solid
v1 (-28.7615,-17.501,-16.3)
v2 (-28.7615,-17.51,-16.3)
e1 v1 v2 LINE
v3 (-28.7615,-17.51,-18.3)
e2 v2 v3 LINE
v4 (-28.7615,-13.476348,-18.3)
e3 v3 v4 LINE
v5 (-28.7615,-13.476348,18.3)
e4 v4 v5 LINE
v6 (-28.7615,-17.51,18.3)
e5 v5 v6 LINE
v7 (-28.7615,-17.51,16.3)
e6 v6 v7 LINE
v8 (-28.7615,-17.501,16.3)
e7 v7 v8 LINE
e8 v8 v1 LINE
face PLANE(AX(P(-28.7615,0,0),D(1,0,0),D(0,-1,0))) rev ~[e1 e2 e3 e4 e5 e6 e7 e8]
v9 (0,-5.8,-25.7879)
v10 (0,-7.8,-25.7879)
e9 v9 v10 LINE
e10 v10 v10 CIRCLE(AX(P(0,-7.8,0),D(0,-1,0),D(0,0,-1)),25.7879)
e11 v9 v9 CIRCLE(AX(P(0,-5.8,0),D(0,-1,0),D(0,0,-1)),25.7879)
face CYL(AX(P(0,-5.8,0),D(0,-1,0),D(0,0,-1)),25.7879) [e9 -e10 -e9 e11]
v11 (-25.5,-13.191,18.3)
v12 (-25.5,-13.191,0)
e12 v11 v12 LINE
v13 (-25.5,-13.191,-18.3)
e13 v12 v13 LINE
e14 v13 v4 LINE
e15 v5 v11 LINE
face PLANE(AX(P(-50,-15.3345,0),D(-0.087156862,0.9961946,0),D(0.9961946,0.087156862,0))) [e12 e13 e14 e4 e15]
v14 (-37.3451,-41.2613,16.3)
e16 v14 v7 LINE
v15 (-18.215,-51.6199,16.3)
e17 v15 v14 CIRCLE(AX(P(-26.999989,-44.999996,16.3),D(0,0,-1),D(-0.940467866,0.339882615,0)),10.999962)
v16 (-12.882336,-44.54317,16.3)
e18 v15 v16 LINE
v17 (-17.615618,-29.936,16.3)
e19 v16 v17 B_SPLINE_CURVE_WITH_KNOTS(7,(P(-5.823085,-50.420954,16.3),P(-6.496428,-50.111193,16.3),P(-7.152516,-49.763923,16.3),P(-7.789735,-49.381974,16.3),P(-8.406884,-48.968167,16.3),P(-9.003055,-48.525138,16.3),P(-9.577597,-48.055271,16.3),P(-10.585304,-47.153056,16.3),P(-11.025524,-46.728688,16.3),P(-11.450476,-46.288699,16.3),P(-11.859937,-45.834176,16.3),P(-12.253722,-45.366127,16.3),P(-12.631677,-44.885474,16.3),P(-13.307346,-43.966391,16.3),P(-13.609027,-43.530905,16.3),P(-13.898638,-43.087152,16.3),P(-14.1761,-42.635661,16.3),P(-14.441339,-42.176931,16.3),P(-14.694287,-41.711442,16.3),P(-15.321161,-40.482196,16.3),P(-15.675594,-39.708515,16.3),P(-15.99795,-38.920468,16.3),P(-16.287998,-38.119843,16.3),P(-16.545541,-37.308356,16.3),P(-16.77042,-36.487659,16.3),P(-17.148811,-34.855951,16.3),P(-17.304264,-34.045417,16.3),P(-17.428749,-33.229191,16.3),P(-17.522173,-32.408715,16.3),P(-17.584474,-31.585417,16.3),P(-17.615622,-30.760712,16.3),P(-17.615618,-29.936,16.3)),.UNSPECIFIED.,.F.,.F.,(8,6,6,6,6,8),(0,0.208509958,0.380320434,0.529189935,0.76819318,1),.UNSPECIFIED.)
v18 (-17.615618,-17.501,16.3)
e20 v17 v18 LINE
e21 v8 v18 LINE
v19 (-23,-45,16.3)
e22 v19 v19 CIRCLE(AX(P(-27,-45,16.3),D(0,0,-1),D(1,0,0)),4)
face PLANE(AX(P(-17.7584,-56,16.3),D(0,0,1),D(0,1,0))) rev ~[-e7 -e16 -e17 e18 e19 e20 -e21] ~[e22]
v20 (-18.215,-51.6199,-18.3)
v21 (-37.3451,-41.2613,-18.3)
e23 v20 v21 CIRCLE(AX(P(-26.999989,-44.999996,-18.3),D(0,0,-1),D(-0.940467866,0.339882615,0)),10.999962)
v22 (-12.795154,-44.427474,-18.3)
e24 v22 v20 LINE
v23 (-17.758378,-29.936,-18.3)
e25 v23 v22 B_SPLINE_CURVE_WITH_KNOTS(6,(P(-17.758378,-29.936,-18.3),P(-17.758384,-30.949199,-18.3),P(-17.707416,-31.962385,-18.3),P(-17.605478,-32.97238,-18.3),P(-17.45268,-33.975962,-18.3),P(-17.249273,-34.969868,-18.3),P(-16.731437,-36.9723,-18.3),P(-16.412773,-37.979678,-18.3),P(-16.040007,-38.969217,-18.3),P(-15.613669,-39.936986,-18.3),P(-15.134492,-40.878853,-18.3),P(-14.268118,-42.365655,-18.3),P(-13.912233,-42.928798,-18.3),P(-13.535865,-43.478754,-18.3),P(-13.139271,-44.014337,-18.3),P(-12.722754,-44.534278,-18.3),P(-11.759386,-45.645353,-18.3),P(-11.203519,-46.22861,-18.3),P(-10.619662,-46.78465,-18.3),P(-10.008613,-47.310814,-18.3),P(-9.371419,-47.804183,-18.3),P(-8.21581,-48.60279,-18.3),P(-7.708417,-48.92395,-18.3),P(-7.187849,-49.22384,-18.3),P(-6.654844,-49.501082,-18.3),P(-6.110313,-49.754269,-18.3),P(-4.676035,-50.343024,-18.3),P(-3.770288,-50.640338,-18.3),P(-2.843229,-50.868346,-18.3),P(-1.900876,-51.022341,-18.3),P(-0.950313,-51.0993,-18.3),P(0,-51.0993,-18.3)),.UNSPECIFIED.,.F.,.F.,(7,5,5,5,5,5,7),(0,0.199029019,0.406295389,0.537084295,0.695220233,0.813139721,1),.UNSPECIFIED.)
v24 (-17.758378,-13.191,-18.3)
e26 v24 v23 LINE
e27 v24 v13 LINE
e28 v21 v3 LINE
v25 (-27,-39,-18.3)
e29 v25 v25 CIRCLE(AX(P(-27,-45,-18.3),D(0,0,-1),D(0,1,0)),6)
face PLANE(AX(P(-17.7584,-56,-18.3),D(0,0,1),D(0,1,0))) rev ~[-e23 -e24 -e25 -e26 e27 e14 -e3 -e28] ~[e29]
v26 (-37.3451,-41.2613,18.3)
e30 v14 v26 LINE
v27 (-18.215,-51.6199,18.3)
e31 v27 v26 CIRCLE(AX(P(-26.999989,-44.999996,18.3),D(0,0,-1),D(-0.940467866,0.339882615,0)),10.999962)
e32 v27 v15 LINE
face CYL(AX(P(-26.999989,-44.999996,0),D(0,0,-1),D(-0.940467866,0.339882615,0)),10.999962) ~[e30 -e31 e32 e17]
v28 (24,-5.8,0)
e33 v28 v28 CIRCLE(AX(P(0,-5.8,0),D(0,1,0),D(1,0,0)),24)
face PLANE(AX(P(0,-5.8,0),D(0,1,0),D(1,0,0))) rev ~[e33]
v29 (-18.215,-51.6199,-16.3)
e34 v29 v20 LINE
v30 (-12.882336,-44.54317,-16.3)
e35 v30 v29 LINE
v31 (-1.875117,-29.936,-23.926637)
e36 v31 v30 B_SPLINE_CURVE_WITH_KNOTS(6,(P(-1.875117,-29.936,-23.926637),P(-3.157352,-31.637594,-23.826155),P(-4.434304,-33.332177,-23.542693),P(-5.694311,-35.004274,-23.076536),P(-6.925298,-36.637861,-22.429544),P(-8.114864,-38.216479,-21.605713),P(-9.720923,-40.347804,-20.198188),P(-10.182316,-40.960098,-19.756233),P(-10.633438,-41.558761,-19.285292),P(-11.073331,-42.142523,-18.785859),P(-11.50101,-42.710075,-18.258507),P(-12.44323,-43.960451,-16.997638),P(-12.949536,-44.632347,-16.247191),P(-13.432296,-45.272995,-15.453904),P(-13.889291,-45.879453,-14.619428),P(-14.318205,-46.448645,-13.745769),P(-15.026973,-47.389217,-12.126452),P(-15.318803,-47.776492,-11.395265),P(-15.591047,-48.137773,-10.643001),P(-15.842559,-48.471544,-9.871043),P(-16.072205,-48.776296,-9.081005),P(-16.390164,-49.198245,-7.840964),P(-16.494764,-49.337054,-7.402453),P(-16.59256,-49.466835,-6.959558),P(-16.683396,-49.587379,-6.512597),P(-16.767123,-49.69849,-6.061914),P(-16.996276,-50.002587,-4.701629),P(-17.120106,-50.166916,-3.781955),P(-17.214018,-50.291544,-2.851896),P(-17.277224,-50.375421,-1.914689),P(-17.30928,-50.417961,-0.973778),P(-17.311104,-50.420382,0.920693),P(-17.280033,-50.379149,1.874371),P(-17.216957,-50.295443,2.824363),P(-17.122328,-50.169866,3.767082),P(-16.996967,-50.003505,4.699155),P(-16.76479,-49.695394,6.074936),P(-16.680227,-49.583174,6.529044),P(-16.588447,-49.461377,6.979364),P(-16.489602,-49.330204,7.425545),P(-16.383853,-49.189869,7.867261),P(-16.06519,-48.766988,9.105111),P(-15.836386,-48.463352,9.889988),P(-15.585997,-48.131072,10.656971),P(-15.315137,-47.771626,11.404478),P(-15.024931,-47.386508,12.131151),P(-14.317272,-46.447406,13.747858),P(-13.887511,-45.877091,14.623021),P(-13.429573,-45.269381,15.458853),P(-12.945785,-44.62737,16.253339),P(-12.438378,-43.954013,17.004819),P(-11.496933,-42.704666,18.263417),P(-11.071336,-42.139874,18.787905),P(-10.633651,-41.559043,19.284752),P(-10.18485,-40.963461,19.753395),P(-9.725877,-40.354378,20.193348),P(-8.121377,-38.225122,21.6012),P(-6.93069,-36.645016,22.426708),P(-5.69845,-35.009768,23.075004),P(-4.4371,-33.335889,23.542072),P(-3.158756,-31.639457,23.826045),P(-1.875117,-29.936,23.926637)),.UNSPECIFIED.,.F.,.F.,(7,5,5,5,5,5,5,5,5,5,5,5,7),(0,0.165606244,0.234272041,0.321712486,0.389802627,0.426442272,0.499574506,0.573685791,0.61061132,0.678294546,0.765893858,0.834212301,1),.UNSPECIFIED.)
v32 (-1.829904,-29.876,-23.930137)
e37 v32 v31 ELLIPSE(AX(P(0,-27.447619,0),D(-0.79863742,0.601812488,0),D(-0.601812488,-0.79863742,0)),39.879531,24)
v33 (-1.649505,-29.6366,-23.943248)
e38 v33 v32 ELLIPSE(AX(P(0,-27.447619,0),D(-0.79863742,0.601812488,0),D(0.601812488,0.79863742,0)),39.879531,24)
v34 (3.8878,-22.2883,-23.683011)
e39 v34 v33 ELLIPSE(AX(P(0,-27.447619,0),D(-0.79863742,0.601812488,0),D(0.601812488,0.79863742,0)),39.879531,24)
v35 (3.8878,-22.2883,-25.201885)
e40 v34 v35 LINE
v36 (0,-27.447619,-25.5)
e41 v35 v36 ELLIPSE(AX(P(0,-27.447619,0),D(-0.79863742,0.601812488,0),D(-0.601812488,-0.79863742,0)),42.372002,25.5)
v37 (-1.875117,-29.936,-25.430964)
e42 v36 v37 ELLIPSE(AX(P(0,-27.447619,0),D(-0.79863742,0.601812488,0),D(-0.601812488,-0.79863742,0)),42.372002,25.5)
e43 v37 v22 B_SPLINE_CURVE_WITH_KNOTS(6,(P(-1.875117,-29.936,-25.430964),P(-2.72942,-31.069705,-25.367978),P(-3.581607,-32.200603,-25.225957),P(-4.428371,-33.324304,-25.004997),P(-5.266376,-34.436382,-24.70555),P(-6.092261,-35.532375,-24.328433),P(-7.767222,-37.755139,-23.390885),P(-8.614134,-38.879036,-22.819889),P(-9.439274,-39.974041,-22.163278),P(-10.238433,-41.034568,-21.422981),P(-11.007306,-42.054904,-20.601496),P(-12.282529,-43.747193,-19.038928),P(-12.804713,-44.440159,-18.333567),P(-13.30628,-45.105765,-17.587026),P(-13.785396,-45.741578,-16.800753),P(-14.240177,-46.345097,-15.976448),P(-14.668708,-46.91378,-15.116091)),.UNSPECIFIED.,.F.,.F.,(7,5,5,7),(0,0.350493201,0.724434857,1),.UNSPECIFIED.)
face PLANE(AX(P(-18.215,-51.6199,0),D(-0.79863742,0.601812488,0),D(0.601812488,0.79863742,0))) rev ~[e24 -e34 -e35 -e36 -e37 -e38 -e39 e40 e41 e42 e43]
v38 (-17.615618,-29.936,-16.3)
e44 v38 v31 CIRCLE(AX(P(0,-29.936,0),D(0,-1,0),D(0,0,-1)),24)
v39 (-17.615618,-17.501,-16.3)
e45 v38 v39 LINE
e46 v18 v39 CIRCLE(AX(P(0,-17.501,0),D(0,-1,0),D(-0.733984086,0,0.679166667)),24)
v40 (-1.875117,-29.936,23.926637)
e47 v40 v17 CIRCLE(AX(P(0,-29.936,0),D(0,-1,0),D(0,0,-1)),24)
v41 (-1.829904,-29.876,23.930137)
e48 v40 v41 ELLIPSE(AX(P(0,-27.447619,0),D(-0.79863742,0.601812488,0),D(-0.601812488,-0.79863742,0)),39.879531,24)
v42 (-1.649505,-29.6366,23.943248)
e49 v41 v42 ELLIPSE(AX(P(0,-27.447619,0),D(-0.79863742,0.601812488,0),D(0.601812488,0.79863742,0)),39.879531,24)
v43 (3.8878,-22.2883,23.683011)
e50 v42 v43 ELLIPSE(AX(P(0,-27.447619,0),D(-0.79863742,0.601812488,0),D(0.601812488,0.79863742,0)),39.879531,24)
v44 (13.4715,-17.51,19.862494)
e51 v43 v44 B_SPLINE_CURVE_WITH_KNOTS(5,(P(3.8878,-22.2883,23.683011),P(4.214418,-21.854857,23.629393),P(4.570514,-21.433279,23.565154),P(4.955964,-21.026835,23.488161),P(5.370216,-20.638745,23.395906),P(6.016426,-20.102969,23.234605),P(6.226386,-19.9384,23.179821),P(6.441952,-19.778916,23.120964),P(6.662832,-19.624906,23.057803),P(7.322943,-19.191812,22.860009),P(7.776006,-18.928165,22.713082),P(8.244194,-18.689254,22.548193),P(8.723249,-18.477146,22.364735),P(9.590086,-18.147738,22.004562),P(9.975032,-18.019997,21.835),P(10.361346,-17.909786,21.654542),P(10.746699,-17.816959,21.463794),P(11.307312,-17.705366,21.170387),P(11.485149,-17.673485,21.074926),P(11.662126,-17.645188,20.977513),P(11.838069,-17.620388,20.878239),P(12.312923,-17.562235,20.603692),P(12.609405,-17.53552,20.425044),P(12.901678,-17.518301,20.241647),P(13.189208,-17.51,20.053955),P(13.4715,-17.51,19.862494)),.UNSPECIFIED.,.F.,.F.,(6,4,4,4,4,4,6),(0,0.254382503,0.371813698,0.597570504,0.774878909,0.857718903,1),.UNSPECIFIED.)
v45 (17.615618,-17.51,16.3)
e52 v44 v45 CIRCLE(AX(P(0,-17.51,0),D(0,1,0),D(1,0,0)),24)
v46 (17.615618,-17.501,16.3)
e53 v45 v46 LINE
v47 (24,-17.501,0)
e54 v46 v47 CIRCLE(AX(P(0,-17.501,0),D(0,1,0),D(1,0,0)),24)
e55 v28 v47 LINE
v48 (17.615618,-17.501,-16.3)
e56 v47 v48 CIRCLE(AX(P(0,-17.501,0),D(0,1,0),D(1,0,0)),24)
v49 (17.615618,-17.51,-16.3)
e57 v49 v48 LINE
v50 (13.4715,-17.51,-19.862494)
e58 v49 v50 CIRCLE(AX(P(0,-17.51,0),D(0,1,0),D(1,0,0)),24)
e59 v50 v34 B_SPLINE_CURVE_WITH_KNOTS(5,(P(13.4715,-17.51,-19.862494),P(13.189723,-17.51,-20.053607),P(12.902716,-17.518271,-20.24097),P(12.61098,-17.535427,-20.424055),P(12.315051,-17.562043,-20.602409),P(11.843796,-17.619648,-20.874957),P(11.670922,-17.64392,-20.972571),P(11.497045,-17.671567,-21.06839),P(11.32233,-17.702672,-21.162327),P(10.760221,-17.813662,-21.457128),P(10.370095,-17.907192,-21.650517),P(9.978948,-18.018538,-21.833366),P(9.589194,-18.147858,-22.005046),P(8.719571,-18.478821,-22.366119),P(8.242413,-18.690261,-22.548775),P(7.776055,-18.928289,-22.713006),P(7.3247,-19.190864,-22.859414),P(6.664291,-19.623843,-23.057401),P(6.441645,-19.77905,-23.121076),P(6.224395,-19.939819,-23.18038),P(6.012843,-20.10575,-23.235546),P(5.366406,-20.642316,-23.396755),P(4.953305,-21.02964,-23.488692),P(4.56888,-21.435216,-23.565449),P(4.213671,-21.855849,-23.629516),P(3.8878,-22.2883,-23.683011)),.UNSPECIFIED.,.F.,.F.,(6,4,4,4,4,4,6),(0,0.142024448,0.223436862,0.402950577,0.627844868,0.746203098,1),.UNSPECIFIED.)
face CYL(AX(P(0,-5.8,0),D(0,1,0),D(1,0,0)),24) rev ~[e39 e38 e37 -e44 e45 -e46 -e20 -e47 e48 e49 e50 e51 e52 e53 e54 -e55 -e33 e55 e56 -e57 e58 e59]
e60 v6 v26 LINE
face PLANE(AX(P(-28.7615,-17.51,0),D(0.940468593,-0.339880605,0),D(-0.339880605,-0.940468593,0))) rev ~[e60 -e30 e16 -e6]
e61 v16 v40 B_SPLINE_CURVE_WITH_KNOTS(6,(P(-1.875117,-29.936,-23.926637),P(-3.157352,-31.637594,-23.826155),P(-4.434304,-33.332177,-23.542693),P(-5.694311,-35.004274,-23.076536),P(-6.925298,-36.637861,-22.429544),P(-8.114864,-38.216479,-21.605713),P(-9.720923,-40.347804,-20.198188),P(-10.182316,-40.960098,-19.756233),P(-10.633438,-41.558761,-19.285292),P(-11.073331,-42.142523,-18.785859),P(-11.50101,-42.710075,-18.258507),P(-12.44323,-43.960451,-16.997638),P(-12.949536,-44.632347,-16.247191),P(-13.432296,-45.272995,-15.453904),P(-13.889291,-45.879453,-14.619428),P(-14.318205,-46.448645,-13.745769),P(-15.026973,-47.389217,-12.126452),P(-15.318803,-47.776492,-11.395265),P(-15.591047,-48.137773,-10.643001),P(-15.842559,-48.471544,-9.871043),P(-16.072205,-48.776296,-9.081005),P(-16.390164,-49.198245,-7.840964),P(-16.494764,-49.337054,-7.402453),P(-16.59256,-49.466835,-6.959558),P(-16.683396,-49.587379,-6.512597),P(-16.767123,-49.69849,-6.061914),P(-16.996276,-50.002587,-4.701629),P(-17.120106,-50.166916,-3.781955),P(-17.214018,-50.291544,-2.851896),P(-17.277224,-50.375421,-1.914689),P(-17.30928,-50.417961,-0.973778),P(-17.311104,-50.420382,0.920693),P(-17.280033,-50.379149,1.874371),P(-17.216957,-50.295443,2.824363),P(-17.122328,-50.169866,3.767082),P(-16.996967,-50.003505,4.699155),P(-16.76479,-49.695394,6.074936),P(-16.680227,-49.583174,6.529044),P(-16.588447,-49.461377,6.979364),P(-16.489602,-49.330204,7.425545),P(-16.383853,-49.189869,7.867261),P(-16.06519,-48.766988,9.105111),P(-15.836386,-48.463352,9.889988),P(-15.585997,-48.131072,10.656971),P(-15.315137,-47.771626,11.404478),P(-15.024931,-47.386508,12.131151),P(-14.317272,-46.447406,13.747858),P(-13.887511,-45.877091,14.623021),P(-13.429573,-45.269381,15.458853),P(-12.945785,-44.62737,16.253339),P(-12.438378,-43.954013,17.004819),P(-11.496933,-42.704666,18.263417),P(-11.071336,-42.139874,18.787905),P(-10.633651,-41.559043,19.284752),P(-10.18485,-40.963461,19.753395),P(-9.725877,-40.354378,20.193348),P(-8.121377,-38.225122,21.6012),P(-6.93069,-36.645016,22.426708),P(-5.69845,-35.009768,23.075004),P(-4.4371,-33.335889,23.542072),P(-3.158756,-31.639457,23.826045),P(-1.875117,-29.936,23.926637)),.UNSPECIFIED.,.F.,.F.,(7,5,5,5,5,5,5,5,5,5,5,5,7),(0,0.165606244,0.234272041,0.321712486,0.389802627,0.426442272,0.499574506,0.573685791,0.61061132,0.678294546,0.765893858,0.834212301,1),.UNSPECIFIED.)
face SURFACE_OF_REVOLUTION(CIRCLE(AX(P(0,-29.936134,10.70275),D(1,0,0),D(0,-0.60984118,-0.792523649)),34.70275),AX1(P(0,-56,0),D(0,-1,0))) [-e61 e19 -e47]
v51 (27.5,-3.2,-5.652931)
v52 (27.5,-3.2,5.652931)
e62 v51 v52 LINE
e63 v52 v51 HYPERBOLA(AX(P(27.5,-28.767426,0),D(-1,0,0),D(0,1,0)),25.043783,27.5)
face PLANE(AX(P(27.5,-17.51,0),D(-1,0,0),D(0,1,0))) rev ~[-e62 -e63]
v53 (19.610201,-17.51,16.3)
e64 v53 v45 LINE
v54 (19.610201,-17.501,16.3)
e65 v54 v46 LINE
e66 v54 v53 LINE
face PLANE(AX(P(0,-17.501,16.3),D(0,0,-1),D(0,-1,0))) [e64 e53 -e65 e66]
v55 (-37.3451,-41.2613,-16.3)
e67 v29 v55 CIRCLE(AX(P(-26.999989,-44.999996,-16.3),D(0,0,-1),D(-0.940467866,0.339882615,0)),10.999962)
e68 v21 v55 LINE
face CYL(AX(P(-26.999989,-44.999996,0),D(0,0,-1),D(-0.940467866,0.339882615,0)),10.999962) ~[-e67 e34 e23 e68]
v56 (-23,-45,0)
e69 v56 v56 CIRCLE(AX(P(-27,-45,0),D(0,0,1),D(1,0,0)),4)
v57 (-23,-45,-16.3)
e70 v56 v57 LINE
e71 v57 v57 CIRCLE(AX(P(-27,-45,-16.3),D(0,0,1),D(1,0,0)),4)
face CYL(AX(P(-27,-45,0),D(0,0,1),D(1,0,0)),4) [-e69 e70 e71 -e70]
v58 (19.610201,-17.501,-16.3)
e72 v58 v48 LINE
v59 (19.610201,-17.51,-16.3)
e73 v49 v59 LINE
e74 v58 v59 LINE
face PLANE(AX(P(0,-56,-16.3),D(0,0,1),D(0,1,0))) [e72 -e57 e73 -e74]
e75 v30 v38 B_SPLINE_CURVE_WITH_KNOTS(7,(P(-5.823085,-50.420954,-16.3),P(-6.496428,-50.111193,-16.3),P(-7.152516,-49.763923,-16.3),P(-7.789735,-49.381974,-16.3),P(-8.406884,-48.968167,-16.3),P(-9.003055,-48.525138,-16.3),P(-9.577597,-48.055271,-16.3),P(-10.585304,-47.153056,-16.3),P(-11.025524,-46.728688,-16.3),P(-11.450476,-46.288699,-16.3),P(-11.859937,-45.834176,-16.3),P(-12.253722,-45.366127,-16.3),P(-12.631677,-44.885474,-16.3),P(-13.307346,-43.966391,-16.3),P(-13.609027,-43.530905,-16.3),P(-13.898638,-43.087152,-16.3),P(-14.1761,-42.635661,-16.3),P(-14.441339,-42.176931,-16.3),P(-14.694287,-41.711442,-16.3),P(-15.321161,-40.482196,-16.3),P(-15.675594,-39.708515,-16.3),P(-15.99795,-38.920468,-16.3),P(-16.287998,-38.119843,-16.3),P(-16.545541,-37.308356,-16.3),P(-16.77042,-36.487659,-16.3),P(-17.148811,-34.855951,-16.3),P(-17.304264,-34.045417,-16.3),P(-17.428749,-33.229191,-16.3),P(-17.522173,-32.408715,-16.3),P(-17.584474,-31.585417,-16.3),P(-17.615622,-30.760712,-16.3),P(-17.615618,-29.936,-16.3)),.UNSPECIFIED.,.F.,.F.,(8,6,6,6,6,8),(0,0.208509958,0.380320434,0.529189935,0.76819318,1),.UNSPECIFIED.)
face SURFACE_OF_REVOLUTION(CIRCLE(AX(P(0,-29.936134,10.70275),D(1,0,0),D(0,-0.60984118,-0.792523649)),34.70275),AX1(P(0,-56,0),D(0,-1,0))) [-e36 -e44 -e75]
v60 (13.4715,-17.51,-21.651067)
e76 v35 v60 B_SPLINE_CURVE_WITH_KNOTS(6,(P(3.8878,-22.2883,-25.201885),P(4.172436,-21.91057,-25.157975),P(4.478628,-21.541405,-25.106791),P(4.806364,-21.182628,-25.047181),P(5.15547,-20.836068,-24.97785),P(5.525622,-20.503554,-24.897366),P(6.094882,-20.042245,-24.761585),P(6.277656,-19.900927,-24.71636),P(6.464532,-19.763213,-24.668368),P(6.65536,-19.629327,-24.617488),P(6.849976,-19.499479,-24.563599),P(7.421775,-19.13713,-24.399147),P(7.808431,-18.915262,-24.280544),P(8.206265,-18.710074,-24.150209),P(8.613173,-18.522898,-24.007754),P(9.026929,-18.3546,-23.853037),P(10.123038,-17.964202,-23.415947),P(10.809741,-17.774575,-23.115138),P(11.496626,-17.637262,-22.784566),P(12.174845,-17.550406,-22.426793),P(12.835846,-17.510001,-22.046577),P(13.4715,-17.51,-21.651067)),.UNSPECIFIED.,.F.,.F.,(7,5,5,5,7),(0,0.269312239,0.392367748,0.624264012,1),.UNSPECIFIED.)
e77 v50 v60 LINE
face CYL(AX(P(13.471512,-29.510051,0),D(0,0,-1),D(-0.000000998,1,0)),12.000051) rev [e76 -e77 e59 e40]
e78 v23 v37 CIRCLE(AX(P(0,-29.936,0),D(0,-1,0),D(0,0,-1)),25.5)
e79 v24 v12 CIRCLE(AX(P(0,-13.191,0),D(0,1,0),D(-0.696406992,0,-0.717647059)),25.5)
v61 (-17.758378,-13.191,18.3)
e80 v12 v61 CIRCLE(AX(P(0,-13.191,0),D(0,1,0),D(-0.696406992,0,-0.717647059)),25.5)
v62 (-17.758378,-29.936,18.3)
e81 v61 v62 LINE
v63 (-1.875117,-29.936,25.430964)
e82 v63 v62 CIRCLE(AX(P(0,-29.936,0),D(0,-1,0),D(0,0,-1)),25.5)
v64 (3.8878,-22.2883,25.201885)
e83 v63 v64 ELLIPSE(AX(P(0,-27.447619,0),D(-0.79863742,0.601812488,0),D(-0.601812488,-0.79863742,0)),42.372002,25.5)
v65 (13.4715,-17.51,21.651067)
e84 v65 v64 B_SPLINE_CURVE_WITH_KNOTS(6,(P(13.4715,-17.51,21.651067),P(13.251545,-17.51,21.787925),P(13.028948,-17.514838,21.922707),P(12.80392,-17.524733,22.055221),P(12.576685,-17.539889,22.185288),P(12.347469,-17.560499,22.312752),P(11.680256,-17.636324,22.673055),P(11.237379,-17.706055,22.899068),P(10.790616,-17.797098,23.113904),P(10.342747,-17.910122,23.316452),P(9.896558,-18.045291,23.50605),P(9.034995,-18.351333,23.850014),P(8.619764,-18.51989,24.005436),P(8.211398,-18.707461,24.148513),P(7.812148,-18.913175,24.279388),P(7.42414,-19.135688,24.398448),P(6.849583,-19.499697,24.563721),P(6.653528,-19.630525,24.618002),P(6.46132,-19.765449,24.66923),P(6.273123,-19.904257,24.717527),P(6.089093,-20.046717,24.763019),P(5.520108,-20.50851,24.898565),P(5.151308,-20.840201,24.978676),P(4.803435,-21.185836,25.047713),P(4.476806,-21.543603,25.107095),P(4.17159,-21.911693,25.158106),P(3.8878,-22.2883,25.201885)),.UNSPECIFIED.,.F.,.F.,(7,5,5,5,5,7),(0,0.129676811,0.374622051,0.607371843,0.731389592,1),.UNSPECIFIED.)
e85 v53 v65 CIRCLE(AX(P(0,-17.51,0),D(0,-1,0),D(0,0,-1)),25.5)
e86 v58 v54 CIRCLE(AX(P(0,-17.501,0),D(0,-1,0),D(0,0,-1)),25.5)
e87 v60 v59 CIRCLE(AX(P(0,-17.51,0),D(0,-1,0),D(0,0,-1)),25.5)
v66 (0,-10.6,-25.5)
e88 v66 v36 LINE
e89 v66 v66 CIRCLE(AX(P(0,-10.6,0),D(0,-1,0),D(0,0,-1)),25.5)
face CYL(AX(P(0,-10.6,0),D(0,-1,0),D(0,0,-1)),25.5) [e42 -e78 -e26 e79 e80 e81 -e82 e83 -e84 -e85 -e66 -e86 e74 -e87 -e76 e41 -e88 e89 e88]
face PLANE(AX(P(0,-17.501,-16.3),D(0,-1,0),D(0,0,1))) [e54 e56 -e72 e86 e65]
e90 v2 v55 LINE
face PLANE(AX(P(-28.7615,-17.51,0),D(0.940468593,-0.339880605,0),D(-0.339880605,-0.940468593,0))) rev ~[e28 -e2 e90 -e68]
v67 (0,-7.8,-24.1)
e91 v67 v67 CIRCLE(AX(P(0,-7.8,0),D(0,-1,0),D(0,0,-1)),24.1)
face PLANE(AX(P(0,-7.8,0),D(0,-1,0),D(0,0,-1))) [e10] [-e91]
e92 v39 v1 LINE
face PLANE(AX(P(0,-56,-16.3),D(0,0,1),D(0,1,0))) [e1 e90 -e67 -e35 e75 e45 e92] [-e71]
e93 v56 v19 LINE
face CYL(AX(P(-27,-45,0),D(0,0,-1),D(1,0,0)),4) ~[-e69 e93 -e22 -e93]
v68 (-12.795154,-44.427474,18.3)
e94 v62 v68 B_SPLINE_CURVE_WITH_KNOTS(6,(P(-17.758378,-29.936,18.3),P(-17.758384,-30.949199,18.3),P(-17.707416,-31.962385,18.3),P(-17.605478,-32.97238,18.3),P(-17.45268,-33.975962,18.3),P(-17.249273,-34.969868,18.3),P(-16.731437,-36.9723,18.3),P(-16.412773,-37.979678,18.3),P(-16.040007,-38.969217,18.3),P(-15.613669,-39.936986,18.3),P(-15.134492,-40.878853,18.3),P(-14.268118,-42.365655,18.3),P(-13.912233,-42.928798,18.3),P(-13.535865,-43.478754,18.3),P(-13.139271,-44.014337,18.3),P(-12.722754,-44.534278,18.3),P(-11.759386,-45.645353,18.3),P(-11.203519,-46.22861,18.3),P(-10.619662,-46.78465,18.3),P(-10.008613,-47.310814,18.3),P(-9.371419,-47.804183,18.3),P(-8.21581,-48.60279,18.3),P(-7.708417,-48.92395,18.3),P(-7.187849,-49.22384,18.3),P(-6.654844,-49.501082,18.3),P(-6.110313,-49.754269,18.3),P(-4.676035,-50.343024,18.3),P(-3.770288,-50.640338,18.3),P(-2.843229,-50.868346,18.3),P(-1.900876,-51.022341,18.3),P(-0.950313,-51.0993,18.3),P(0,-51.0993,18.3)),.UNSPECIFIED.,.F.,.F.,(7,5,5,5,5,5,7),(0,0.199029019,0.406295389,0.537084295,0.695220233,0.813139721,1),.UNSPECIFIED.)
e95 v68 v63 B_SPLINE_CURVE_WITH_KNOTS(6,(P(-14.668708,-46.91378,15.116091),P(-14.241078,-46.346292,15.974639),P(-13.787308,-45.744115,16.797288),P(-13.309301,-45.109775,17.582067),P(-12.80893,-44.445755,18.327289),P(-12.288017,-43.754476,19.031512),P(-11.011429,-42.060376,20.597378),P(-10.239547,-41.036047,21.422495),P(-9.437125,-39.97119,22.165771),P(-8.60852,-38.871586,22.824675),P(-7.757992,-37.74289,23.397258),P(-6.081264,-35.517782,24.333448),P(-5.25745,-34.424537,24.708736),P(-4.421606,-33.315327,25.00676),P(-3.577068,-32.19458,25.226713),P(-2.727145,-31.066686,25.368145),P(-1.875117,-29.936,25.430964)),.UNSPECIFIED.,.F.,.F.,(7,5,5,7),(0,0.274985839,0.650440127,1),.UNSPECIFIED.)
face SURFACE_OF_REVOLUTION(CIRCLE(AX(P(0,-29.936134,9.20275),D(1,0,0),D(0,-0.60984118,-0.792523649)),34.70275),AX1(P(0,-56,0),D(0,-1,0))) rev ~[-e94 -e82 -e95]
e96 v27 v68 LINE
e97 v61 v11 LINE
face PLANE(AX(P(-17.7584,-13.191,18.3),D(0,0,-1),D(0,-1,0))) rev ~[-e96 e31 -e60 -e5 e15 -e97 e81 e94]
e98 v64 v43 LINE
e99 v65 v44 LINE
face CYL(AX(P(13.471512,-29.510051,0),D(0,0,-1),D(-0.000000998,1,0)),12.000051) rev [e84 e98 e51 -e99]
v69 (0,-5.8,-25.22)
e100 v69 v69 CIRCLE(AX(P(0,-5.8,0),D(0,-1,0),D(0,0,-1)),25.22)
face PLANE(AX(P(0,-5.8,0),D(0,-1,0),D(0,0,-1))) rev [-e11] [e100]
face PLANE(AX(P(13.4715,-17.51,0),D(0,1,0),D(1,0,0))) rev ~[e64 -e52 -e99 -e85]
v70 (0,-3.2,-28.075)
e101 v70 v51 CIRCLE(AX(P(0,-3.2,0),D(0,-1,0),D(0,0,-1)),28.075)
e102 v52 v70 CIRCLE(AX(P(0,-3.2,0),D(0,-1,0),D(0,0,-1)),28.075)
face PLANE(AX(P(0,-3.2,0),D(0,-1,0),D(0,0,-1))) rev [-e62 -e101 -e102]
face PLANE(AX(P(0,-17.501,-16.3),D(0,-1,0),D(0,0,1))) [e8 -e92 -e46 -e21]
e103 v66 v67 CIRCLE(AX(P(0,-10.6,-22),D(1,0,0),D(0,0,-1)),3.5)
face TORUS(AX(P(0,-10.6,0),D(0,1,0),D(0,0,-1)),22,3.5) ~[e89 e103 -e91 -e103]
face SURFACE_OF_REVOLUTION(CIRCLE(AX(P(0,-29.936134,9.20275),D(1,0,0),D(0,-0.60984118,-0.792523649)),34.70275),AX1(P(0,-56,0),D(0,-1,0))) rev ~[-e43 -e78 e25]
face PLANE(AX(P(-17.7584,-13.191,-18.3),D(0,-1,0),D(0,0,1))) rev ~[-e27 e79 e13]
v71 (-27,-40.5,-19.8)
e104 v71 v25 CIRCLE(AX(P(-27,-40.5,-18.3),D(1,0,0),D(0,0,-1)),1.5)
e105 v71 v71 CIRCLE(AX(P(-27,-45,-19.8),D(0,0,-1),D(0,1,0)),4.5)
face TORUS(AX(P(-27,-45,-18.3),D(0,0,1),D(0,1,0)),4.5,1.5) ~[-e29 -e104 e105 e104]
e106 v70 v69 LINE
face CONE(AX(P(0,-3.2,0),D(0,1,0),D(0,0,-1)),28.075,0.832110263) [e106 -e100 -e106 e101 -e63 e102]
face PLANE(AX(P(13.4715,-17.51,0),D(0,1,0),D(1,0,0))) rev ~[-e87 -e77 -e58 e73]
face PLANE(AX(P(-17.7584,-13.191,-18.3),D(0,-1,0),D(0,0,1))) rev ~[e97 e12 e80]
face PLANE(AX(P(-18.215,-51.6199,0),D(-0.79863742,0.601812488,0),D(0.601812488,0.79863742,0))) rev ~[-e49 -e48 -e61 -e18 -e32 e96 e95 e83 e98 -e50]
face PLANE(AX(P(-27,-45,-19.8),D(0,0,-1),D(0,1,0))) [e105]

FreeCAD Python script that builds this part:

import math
import FreeCAD as App
import Part
import Sketcher
from FreeCAD import Vector
Q = App.Units.Quantity

doc = App.newDocument("Part")
params = doc.addObject("Spreadsheet::Sheet", "Params")
for row, (alias, value) in enumerate([
    ("sketch1_radius", "3.5 mm"),
    ("sketch1_width", "2 mm"),
    ("sketch1_width2", "52.8 mm"),
    ("sketch1_height", "18.3 mm"),
    ("revolution_angle", "360 deg"),
    ("sketch2_width", "4 mm"),
    ("pocket1_length", "56 mm"),
    ("sketch3_height", "2 mm"),
    ("sketch3_height2", "32.6 mm"),
    ("pad1_length", "44 mm"),
    ("sketch4_radius", "11 mm"),
    ("sketch4_radius2", "12 mm"),
    ("sketch4_width", "300 mm"),
    ("sketch4_height", "17.51 mm"),
    ("pocket2_length", "100 mm"),
    ("sketch5_diameter", "48 mm"),
    ("pocket3_length", "24.076 mm"),
    ("sketch6_height", "24 mm"),
    ("sketch6_height2", "16.8 mm"),
    ("groove_angle", "360 deg"),
    ("sketch7_height", "32.6 mm"),
    ("pocket4_length", "116 mm"),
    ("sketch8_width", "24.5 mm"),
    ("pocket5_length", "116 mm"),
    ("sketch9_diameter", "8 mm"),
    ("pad2_length", "36.6 mm"),
    ("sketch10_radius", "1.5 mm"),
    ("sketch10_width", "6 mm"),
    ("sketch10_height", "1.5 mm"),
    ("revolution2_angle", "360 deg"),
], start=1):
    params.set(f"A{row}", alias)
    params.set(f"B{row}", "=" + value)
    params.setAlias(f"B{row}", alias)

body = doc.addObject("PartDesign::Body", "Body")

# Sketch on YZ plane
sketch1 = body.newObject("Sketcher::SketchObject", "Sketch")
sketch1.AttachmentSupport = (doc.getObject("YZ_Plane"), [""])
sketch1.MapMode = "FlatFace"
sketch1.addGeometry(Part.LineSegment(Vector(-3.2, 0, 0), Vector(-56, 0, 0)), False)
sketch1.addGeometry(Part.LineSegment(Vector(-56, 0, 0), Vector(-56, -18.3, 0)), False)
sketch1.addGeometry(Part.LineSegment(Vector(-56, -18.3, 0), Vector(-51.0993, -18.3, 0)), False)
sketch1.addGeometry(Part.ArcOfCircle(Part.Circle(Vector(-29.936, 9.203, 0), Vector(0, 0, 1), 34.70303), math.radians(-127.577944), math.radians(-90)), False)
sketch1.addGeometry(Part.LineSegment(Vector(-29.936, -25.5, 0), Vector(-10.6, -25.5, 0)), False)
sketch1.addGeometry(Part.ArcOfCircle(Part.Circle(Vector(-10.6, -22, 0), Vector(0, 0, 1), 3.5), math.radians(-90), math.radians(-36.869898)), False)
sketch1.addGeometry(Part.LineSegment(Vector(-7.8, -24.1, 0), Vector(-7.8, -25.7879, 0)), False)
sketch1.addGeometry(Part.LineSegment(Vector(-7.8, -25.7879, 0), Vector(-5.8, -25.7879, 0)), False)
sketch1.addGeometry(Part.LineSegment(Vector(-5.8, -25.7879, 0), Vector(-5.8, -25.22, 0)), False)
sketch1.addGeometry(Part.LineSegment(Vector(-5.8, -25.22, 0), Vector(-3.2, -28.075, 0)), False)
sketch1.addGeometry(Part.LineSegment(Vector(-3.2, -28.075, 0), Vector(-3.2, 0, 0)), False)
sketch1.addConstraint(Sketcher.Constraint("Coincident", 0, 2, 1, 1))
sketch1.addConstraint(Sketcher.Constraint("Coincident", 1, 2, 2, 1))
sketch1.addConstraint(Sketcher.Constraint("Coincident", 2, 2, 3, 1))
sketch1.addConstraint(Sketcher.Constraint("Tangent", 3, 2, 4, 1))
sketch1.addConstraint(Sketcher.Constraint("Tangent", 4, 2, 5, 1))
sketch1.addConstraint(Sketcher.Constraint("Coincident", 5, 2, 6, 1))
sketch1.addConstraint(Sketcher.Constraint("Coincident", 6, 2, 7, 1))
sketch1.addConstraint(Sketcher.Constraint("Coincident", 7, 2, 8, 1))
sketch1.addConstraint(Sketcher.Constraint("Coincident", 8, 2, 9, 1))
sketch1.addConstraint(Sketcher.Constraint("Coincident", 9, 2, 10, 1))
sketch1.addConstraint(Sketcher.Constraint("Coincident", 10, 2, 0, 1))
sketch1.addConstraint(Sketcher.Constraint("Horizontal", 0))
sketch1.addConstraint(Sketcher.Constraint("Vertical", 1))
sketch1.addConstraint(Sketcher.Constraint("Horizontal", 2))
sketch1.addConstraint(Sketcher.Constraint("Horizontal", 4))
sketch1.addConstraint(Sketcher.Constraint("Vertical", 6))
sketch1.addConstraint(Sketcher.Constraint("Horizontal", 7))
sketch1.addConstraint(Sketcher.Constraint("Vertical", 8))
sketch1.addConstraint(Sketcher.Constraint("Vertical", 10))
sketch1.addConstraint(Sketcher.Constraint("PointOnObject", 0, 2, -1))
sketch1.addConstraint(Sketcher.Constraint("Radius", 5, Q("3.5 mm")))
sketch1.addConstraint(Sketcher.Constraint("DistanceX", 7, 1, 7, 2, Q("2 mm")))
sketch1.addConstraint(Sketcher.Constraint("DistanceX", 0, 2, 0, 1, Q("52.8 mm")))
sketch1.addConstraint(Sketcher.Constraint("DistanceY", 1, 2, 1, 1, Q("18.3 mm")))
sketch1.addConstraint(Sketcher.Constraint("DistanceY", 5, 3, -1, 1, Q("22 mm")))
sketch1.addConstraint(Sketcher.Constraint("DistanceX", 0, 2, -1, 1, Q("56 mm")))
sketch1.addConstraint(Sketcher.Constraint("Radius", 3, Q("34.703 mm")))
sketch1.addConstraint(Sketcher.Constraint("DistanceX", 5, 3, -1, 1, Q("10.6 mm")))
sketch1.addConstraint(Sketcher.Constraint("DistanceX", 5, 2, -1, 1, Q("7.8 mm")))
sketch1.addConstraint(Sketcher.Constraint("DistanceX", 4, 1, 4, 2, Q("19.336 mm")))
sketch1.addConstraint(Sketcher.Constraint("DistanceY", 6, 2, 6, 1, Q("1.688 mm")))
sketch1.addConstraint(Sketcher.Constraint("DistanceY", 8, 1, 8, 2, Q("0.568 mm")))
sketch1.addConstraint(Sketcher.Constraint("DistanceY", 10, 1, 10, 2, Q("28.075 mm")))
sketch1.setExpression("Constraints[20]", "Params.sketch1_radius")
sketch1.setExpression("Constraints[21]", "Params.sketch1_width")
sketch1.setExpression("Constraints[22]", "Params.sketch1_width2")
sketch1.setExpression("Constraints[23]", "Params.sketch1_height")
revolution = body.newObject("PartDesign::Revolution", "Revolution")
revolution.Profile = sketch1
revolution.ReferenceAxis = (sketch1, ["H_Axis"])
revolution.setExpression("Angle", "Params.revolution_angle")

# Sketch on XY plane
sketch2 = body.newObject("Sketcher::SketchObject", "Sketch001")
sketch2.AttachmentSupport = (doc.getObject("XY_Plane"), [""])
sketch2.MapMode = "FlatFace"
sketch2.addGeometry(Part.LineSegment(Vector(-17.7584, -13.191, 0), Vector(-50, -13.191, 0)), False)
sketch2.addGeometry(Part.LineSegment(Vector(-50, -13.191, 0), Vector(-21.7584, -56, 0)), False)
sketch2.addGeometry(Part.LineSegment(Vector(-21.7584, -56, 0), Vector(-17.7584, -56, 0)), False)
sketch2.addGeometry(Part.LineSegment(Vector(-17.7584, -56, 0), Vector(-17.7584, -13.191, 0)), False)
sketch2.addConstraint(Sketcher.Constraint("Coincident", 0, 2, 1, 1))
sketch2.addConstraint(Sketcher.Constraint("Coincident", 1, 2, 2, 1))
sketch2.addConstraint(Sketcher.Constraint("Coincident", 2, 2, 3, 1))
sketch2.addConstraint(Sketcher.Constraint("Coincident", 3, 2, 0, 1))
sketch2.addConstraint(Sketcher.Constraint("Horizontal", 0))
sketch2.addConstraint(Sketcher.Constraint("Horizontal", 2))
sketch2.addConstraint(Sketcher.Constraint("Vertical", 3))
sketch2.addConstraint(Sketcher.Constraint("DistanceX", 2, 1, 2, 2, Q("4 mm")))
sketch2.addConstraint(Sketcher.Constraint("DistanceX", 0, 2, -1, 1, Q("50 mm")))
sketch2.addConstraint(Sketcher.Constraint("DistanceY", 1, 2, -1, 1, Q("56 mm")))
sketch2.addConstraint(Sketcher.Constraint("DistanceY", 3, 1, 3, 2, Q("42.809 mm")))
sketch2.addConstraint(Sketcher.Constraint("DistanceX", 0, 2, 0, 1, Q("32.2416 mm")))
sketch2.setExpression("Constraints[7]", "Params.sketch2_width")
pocket1 = body.newObject("PartDesign::Pocket", "Pocket")
pocket1.Profile = sketch2
pocket1.setExpression("Length", "Params.pocket1_length")
pocket1.Midplane = True

# Sketch on YZ plane
sketch3 = body.newObject("Sketcher::SketchObject", "Sketch002")
sketch3.AttachmentSupport = (doc.getObject("YZ_Plane"), [""])
sketch3.MapMode = "FlatFace"
sketch3.AttachmentOffset = App.Placement(Vector(0, 0, -17.7584), App.Rotation())
sketch3.addGeometry(Part.LineSegment(Vector(-13.191, 18.3, 0), Vector(-56, 18.3, 0)), False)
sketch3.addGeometry(Part.LineSegment(Vector(-56, 18.3, 0), Vector(-56, 16.3, 0)), False)
sketch3.addGeometry(Part.LineSegment(Vector(-56, 16.3, 0), Vector(-17.501, 16.3, 0)), False)
sketch3.addGeometry(Part.LineSegment(Vector(-17.501, 16.3, 0), Vector(-17.501, -16.3, 0)), False)
sketch3.addGeometry(Part.LineSegment(Vector(-17.501, -16.3, 0), Vector(-56, -16.3, 0)), False)
sketch3.addGeometry(Part.LineSegment(Vector(-56, -16.3, 0), Vector(-56, -18.3, 0)), False)
sketch3.addGeometry(Part.LineSegment(Vector(-56, -18.3, 0), Vector(-13.191, -18.3, 0)), False)
sketch3.addGeometry(Part.LineSegment(Vector(-13.191, -18.3, 0), Vector(-13.191, 18.3, 0)), False)
sketch3.addConstraint(Sketcher.Constraint("Coincident", 0, 2, 1, 1))
sketch3.addConstraint(Sketcher.Constraint("Coincident", 1, 2, 2, 1))
sketch3.addConstraint(Sketcher.Constraint("Coincident", 2, 2, 3, 1))
sketch3.addConstraint(Sketcher.Constraint("Coincident", 3, 2, 4, 1))
sketch3.addConstraint(Sketcher.Constraint("Coincident", 4, 2, 5, 1))
sketch3.addConstraint(Sketcher.Constraint("Coincident", 5, 2, 6, 1))
sketch3.addConstraint(Sketcher.Constraint("Coincident", 6, 2, 7, 1))
sketch3.addConstraint(Sketcher.Constraint("Coincident", 7, 2, 0, 1))
sketch3.addConstraint(Sketcher.Constraint("Horizontal", 0))
sketch3.addConstraint(Sketcher.Constraint("Vertical", 1))
sketch3.addConstraint(Sketcher.Constraint("Horizontal", 2))
sketch3.addConstraint(Sketcher.Constraint("Vertical", 3))
sketch3.addConstraint(Sketcher.Constraint("Horizontal", 4))
sketch3.addConstraint(Sketcher.Constraint("Vertical", 5))
sketch3.addConstraint(Sketcher.Constraint("Horizontal", 6))
sketch3.addConstraint(Sketcher.Constraint("Vertical", 7))
sketch3.addConstraint(Sketcher.Constraint("Symmetric", 1, 2, 4, 2, -1))
sketch3.addConstraint(Sketcher.Constraint("Equal", 1, 5))
sketch3.addConstraint(Sketcher.Constraint("DistanceY", 1, 2, 1, 1, Q("2 mm")))
sketch3.addConstraint(Sketcher.Constraint("DistanceY", 3, 2, 3, 1, Q("32.6 mm")))
sketch3.addConstraint(Sketcher.Constraint("DistanceX", 0, 2, -1, 1, Q("56 mm")))
sketch3.addConstraint(Sketcher.Constraint("DistanceX", 0, 2, 0, 1, Q("42.809 mm")))
sketch3.addConstraint(Sketcher.Constraint("DistanceX", 2, 1, 2, 2, Q("38.499 mm")))
sketch3.setExpression("Constraints[18]", "Params.sketch3_height")
sketch3.setExpression("Constraints[19]", "Params.sketch3_height2")
pad1 = body.newObject("PartDesign::Pad", "Pad")
pad1.Profile = sketch3
pad1.setExpression("Length", "Params.pad1_length")
pad1.Midplane = True

# Sketch on XY plane
sketch4 = body.newObject("Sketcher::SketchObject", "Sketch003")
sketch4.AttachmentSupport = (doc.getObject("XY_Plane"), [""])
sketch4.MapMode = "FlatFace"
sketch4.addGeometry(Part.LineSegment(Vector(-150, 150, 0), Vector(-150, -150, 0)), False)
sketch4.addGeometry(Part.LineSegment(Vector(-150, -150, 0), Vector(150, -150, 0)), False)
sketch4.addGeometry(Part.LineSegment(Vector(150, -150, 0), Vector(150, 150, 0)), False)
sketch4.addGeometry(Part.LineSegment(Vector(150, 150, 0), Vector(-150, 150, 0)), False)
sketch4.addGeometry(Part.ArcOfCircle(Part.Circle(Vector(-27, -45, 0), Vector(0, 0, 1), 10.999953), math.radians(160.130238), math.radians(323.000301)), False)
sketch4.addGeometry(Part.LineSegment(Vector(-37.3451, -41.2613, 0), Vector(-28.7615, -17.51, 0)), False)
sketch4.addGeometry(Part.LineSegment(Vector(-28.7615, -17.51, 0), Vector(-28.7615, 0, 0)), False)
sketch4.addGeometry(Part.LineSegment(Vector(-28.7615, 0, 0), Vector(27.5, 0, 0)), False)
sketch4.addGeometry(Part.LineSegment(Vector(27.5, 0, 0), Vector(27.5, -17.51, 0)), False)
sketch4.addGeometry(Part.LineSegment(Vector(27.5, -17.51, 0), Vector(13.4715, -17.51, 0)), False)
sketch4.addGeometry(Part.ArcOfCircle(Part.Circle(Vector(13.4715, -29.51, 0), Vector(0, 0, 1), 12), math.radians(90), math.radians(143.000518)), False)
sketch4.addGeometry(Part.LineSegment(Vector(3.8878, -22.2883, 0), Vector(-18.215, -51.6199, 0)), False)
sketch4.addConstraint(Sketcher.Constraint("Coincident", 0, 2, 1, 1))
sketch4.addConstraint(Sketcher.Constraint("Coincident", 1, 2, 2, 1))
sketch4.addConstraint(Sketcher.Constraint("Coincident", 2, 2, 3, 1))
sketch4.addConstraint(Sketcher.Constraint("Coincident", 3, 2, 0, 1))
sketch4.addConstraint(Sketcher.Constraint("Tangent", 4, 1, 5, 1))
sketch4.addConstraint(Sketcher.Constraint("Coincident", 5, 2, 6, 1))
sketch4.addConstraint(Sketcher.Constraint("Coincident", 6, 2, 7, 1))
sketch4.addConstraint(Sketcher.Constraint("Coincident", 7, 2, 8, 1))
sketch4.addConstraint(Sketcher.Constraint("Coincident", 8, 2, 9, 1))
sketch4.addConstraint(Sketcher.Constraint("Tangent", 9, 2, 10, 1))
sketch4.addConstraint(Sketcher.Constraint("Tangent", 10, 2, 11, 1))
sketch4.addConstraint(Sketcher.Constraint("Tangent", 11, 2, 4, 2))
sketch4.addConstraint(Sketcher.Constraint("Vertical", 0))
sketch4.addConstraint(Sketcher.Constraint("Horizontal", 1))
sketch4.addConstraint(Sketcher.Constraint("Vertical", 2))
sketch4.addConstraint(Sketcher.Constraint("Horizontal", 3))
sketch4.addConstraint(Sketcher.Constraint("Vertical", 6))
sketch4.addConstraint(Sketcher.Constraint("Horizontal", 7))
sketch4.addConstraint(Sketcher.Constraint("Vertical", 8))
sketch4.addConstraint(Sketcher.Constraint("Horizontal", 9))
sketch4.addConstraint(Sketcher.Constraint("Symmetric", 0, 2, 2, 2, -1, 1))
sketch4.addConstraint(Sketcher.Constraint("PointOnObject", 6, 2, -1))
sketch4.addConstraint(Sketcher.Constraint("Horizontal", 5, 2, 8, 2))
sketch4.addConstraint(Sketcher.Constraint("Equal", 3, 0))
sketch4.addConstraint(Sketcher.Constraint("Radius", 4, Q("11 mm")))
sketch4.addConstraint(Sketcher.Constraint("Radius", 10, Q("12 mm")))
sketch4.addConstraint(Sketcher.Constraint("DistanceX", 1, 1, 1, 2, Q("300 mm")))
sketch4.addConstraint(Sketcher.Constraint("Angle", 11, Q("-126.9998 deg")))
sketch4.addConstraint(Sketcher.Constraint("DistanceX", 4, 3, -1, 1, Q("27 mm")))
sketch4.addConstraint(Sketcher.Constraint("DistanceY", 4, 3, -1, 1, Q("45 mm")))
sketch4.addConstraint(Sketcher.Constraint("DistanceY", 6, 1, 6, 2, Q("17.51 mm")))
sketch4.addConstraint(Sketcher.Constraint("DistanceX", -1, 1, 7, 2, Q("27.5 mm")))
sketch4.addConstraint(Sketcher.Constraint("Angle", 5, Q("70.1304 deg")))
sketch4.setExpression("Constraints[24]", "Params.sketch4_radius")
sketch4.setExpression("Constraints[25]", "Params.sketch4_radius2")
sketch4.setExpression("Constraints[26]", "Params.sketch4_width")
sketch4.setExpression("Constraints[30]", "Params.sketch4_height")
pocket2 = body.newObject("PartDesign::Pocket", "Pocket001")
pocket2.Profile = sketch4
pocket2.setExpression("Length", "Params.pocket2_length")
pocket2.Midplane = True

# Sketch on XZ plane
sketch5 = body.newObject("Sketcher::SketchObject", "Sketch004")
sketch5.AttachmentSupport = (doc.getObject("XZ_Plane"), [""])
sketch5.MapMode = "FlatFace"
sketch5.AttachmentOffset = App.Placement(Vector(0, 0, 5.8), App.Rotation())
sketch5.addGeometry(Part.Circle(Vector(0, 0, 0), Vector(0, 0, 1), 24), False)
sketch5.addConstraint(Sketcher.Constraint("Coincident", 0, 3, -1, 1))
sketch5.addConstraint(Sketcher.Constraint("Diameter", 0, Q("48 mm")))
sketch5.setExpression("Constraints[1]", "Params.sketch5_diameter")
pocket3 = body.newObject("PartDesign::Pocket", "Pocket002")
pocket3.Profile = sketch5
pocket3.setExpression("Length", "Params.pocket3_length")
pocket3.Reversed = True

# Sketch on YZ plane
sketch6 = body.newObject("Sketcher::SketchObject", "Sketch005")
sketch6.AttachmentSupport = (doc.getObject("YZ_Plane"), [""])
sketch6.MapMode = "FlatFace"
sketch6.addGeometry(Part.LineSegment(Vector(-29.6366, 0, 0), Vector(-51.0993, 0, 0)), False)
sketch6.addGeometry(Part.LineSegment(Vector(-51.0993, 0, 0), Vector(-51.0993, -16.8, 0)), False)
sketch6.addGeometry(Part.ArcOfCircle(Part.Circle(Vector(-29.936, 10.703, 0), Vector(0, 0, 1), 34.70303), math.radians(-127.577944), math.radians(-90)), False)
sketch6.addGeometry(Part.LineSegment(Vector(-29.936, -24, 0), Vector(-29.6366, -24, 0)), False)
sketch6.addGeometry(Part.LineSegment(Vector(-29.6366, -24, 0), Vector(-29.6366, 0, 0)), False)
sketch6.addConstraint(Sketcher.Constraint("Coincident", 0, 2, 1, 1))
sketch6.addConstraint(Sketcher.Constraint("Coincident", 1, 2, 2, 1))
sketch6.addConstraint(Sketcher.Constraint("Tangent", 2, 2, 3, 1))
sketch6.addConstraint(Sketcher.Constraint("Coincident", 3, 2, 4, 1))
sketch6.addConstraint(Sketcher.Constraint("Coincident", 4, 2, 0, 1))
sketch6.addConstraint(Sketcher.Constraint("Horizontal", 0))
sketch6.addConstraint(Sketcher.Constraint("Vertical", 1))
sketch6.addConstraint(Sketcher.Constraint("Horizontal", 3))
sketch6.addConstraint(Sketcher.Constraint("Vertical", 4))
sketch6.addConstraint(Sketcher.Constraint("PointOnObject", 0, 2, -1))
sketch6.addConstraint(Sketcher.Constraint("DistanceY", 4, 1, 4, 2, Q("24 mm")))
sketch6.addConstraint(Sketcher.Constraint("DistanceY", 1, 2, 1, 1, Q("16.8 mm")))
sketch6.addConstraint(Sketcher.Constraint("Radius", 2, Q("34.703 mm")))
sketch6.addConstraint(Sketcher.Constraint("DistanceX", 0, 2, 0, 1, Q("21.4627 mm")))
sketch6.addConstraint(Sketcher.Constraint("DistanceX", 2, 3, -1, 1, Q("29.936 mm")))
sketch6.setExpression("Constraints[10]", "Params.sketch6_height")
sketch6.setExpression("Constraints[11]", "Params.sketch6_height2")
groove = body.newObject("PartDesign::Groove", "Groove")
groove.Profile = sketch6
groove.ReferenceAxis = (sketch6, ["H_Axis"])
groove.setExpression("Angle", "Params.groove_angle")

# Sketch on YZ plane
sketch7 = body.newObject("Sketcher::SketchObject", "Sketch006")
sketch7.AttachmentSupport = (doc.getObject("YZ_Plane"), [""])
sketch7.MapMode = "FlatFace"
sketch7.addGeometry(Part.LineSegment(Vector(-17.501, 16.3, 0), Vector(-56, 16.3, 0)), False)
sketch7.addGeometry(Part.LineSegment(Vector(-56, 16.3, 0), Vector(-56, -16.3, 0)), False)
sketch7.addGeometry(Part.LineSegment(Vector(-56, -16.3, 0), Vector(-17.501, -16.3, 0)), False)
sketch7.addGeometry(Part.LineSegment(Vector(-17.501, -16.3, 0), Vector(-17.501, 16.3, 0)), False)
sketch7.addConstraint(Sketcher.Constraint("Coincident", 0, 2, 1, 1))
sketch7.addConstraint(Sketcher.Constraint("Coincident", 1, 2, 2, 1))
sketch7.addConstraint(Sketcher.Constraint("Coincident", 2, 2, 3, 1))
sketch7.addConstraint(Sketcher.Constraint("Coincident", 3, 2, 0, 1))
sketch7.addConstraint(Sketcher.Constraint("Horizontal", 0))
sketch7.addConstraint(Sketcher.Constraint("Vertical", 1))
sketch7.addConstraint(Sketcher.Constraint("Horizontal", 2))
sketch7.addConstraint(Sketcher.Constraint("Vertical", 3))
sketch7.addConstraint(Sketcher.Constraint("DistanceY", 1, 2, 1, 1, Q("32.6 mm")))
sketch7.addConstraint(Sketcher.Constraint("DistanceX", 0, 2, -1, 1, Q("56 mm")))
sketch7.addConstraint(Sketcher.Constraint("DistanceY", -1, 1, 0, 2, Q("16.3 mm")))
sketch7.addConstraint(Sketcher.Constraint("DistanceX", 0, 2, 0, 1, Q("38.499 mm")))
sketch7.setExpression("Constraints[8]", "Params.sketch7_height")
pocket4 = body.newObject("PartDesign::Pocket", "Pocket003")
pocket4.Profile = sketch7
pocket4.setExpression("Length", "Params.pocket4_length")
pocket4.Midplane = True

# Sketch on XY plane
sketch8 = body.newObject("Sketcher::SketchObject", "Sketch007")
sketch8.AttachmentSupport = (doc.getObject("XY_Plane"), [""])
sketch8.MapMode = "FlatFace"
sketch8.addGeometry(Part.LineSegment(Vector(-50, -13.191, 0), Vector(-50, -15.3345, 0)), False)
sketch8.addGeometry(Part.LineSegment(Vector(-50, -15.3345, 0), Vector(-25.5, -13.191, 0)), False)
sketch8.addGeometry(Part.LineSegment(Vector(-25.5, -13.191, 0), Vector(-50, -13.191, 0)), False)
sketch8.addConstraint(Sketcher.Constraint("Coincident", 0, 2, 1, 1))
sketch8.addConstraint(Sketcher.Constraint("Coincident", 1, 2, 2, 1))
sketch8.addConstraint(Sketcher.Constraint("Coincident", 2, 2, 0, 1))
sketch8.addConstraint(Sketcher.Constraint("Vertical", 0))
sketch8.addConstraint(Sketcher.Constraint("Horizontal", 2))
sketch8.addConstraint(Sketcher.Constraint("Angle", 1, Q("5 deg")))
sketch8.addConstraint(Sketcher.Constraint("DistanceX", 2, 2, 2, 1, Q("24.5 mm")))
sketch8.addConstraint(Sketcher.Constraint("DistanceX", 0, 2, -1, 1, Q("50 mm")))
sketch8.addConstraint(Sketcher.Constraint("DistanceY", 1, 2, -1, 1, Q("13.191 mm")))
sketch8.setExpression("Constraints[6]", "Params.sketch8_width")
pocket5 = body.newObject("PartDesign::Pocket", "Pocket004")
pocket5.Profile = sketch8
pocket5.setExpression("Length", "Params.pocket5_length")
pocket5.Midplane = True

# Sketch on XY plane
sketch9 = body.newObject("Sketcher::SketchObject", "Sketch008")
sketch9.AttachmentSupport = (doc.getObject("XY_Plane"), [""])
sketch9.MapMode = "FlatFace"
sketch9.addGeometry(Part.Circle(Vector(-27, -45, 0), Vector(0, 0, 1), 4), False)
sketch9.addConstraint(Sketcher.Constraint("Diameter", 0, Q("8 mm")))
sketch9.addConstraint(Sketcher.Constraint("DistanceX", 0, 3, -1, 1, Q("27 mm")))
sketch9.addConstraint(Sketcher.Constraint("DistanceY", 0, 3, -1, 1, Q("45 mm")))
sketch9.setExpression("Constraints[0]", "Params.sketch9_diameter")
pad2 = body.newObject("PartDesign::Pad", "Pad001")
pad2.Profile = sketch9
pad2.setExpression("Length", "Params.pad2_length")
pad2.Midplane = True

# Sketch on YZ plane
sketch10 = body.newObject("Sketcher::SketchObject", "Sketch009")
sketch10.AttachmentSupport = (doc.getObject("YZ_Plane"), [""])
sketch10.MapMode = "FlatFace"
sketch10.AttachmentOffset = App.Placement(Vector(0, 0, -27), App.Rotation())
sketch10.addGeometry(Part.LineSegment(Vector(-45, -18.3, 0), Vector(-45, -19.8, 0)), False)
sketch10.addGeometry(Part.LineSegment(Vector(-45, -19.8, 0), Vector(-40.5, -19.8, 0)), False)
sketch10.addGeometry(Part.ArcOfCircle(Part.Circle(Vector(-40.5, -18.3, 0), Vector(0, 0, 1), 1.5), math.radians(-90), math.radians(0)), False)
sketch10.addGeometry(Part.LineSegment(Vector(-39, -18.3, 0), Vector(-45, -18.3, 0)), False)
sketch10.addGeometry(Part.LineSegment(Vector(-45, -18.3, 0), Vector(-45, -19.8, 0)), True)  # axis
sketch10.addConstraint(Sketcher.Constraint("Coincident", 0, 2, 1, 1))
sketch10.addConstraint(Sketcher.Constraint("Tangent", 1, 2, 2, 1))
sketch10.addConstraint(Sketcher.Constraint("Coincident", 2, 2, 3, 1))
sketch10.addConstraint(Sketcher.Constraint("Coincident", 3, 2, 0, 1))
sketch10.addConstraint(Sketcher.Constraint("Vertical", 0))
sketch10.addConstraint(Sketcher.Constraint("Horizontal", 1))
sketch10.addConstraint(Sketcher.Constraint("Horizontal", 3))
sketch10.addConstraint(Sketcher.Constraint("Vertical", 4))
sketch10.addConstraint(Sketcher.Constraint("Coincident", 4, 1, 3, 2))
sketch10.addConstraint(Sketcher.Constraint("Horizontal", 1, 2, 4, 2))
sketch10.addConstraint(Sketcher.Constraint("Radius", 2, Q("1.5 mm")))
sketch10.addConstraint(Sketcher.Constraint("DistanceX", 3, 2, 3, 1, Q("6 mm")))
sketch10.addConstraint(Sketcher.Constraint("DistanceY", 0, 2, 0, 1, Q("1.5 mm")))
sketch10.addConstraint(Sketcher.Constraint("DistanceX", 0, 2, -1, 1, Q("45 mm")))
sketch10.addConstraint(Sketcher.Constraint("DistanceY", 2, 3, -1, 1, Q("18.3 mm")))
sketch10.setExpression("Constraints[10]", "Params.sketch10_radius")
sketch10.setExpression("Constraints[11]", "Params.sketch10_width")
sketch10.setExpression("Constraints[12]", "Params.sketch10_height")
revolution2 = body.newObject("PartDesign::Revolution", "Revolution001")
revolution2.Profile = sketch10
revolution2.ReferenceAxis = (sketch10, ["Axis0"])
revolution2.setExpression("Angle", "Params.revolution2_angle")

doc.recompute()
